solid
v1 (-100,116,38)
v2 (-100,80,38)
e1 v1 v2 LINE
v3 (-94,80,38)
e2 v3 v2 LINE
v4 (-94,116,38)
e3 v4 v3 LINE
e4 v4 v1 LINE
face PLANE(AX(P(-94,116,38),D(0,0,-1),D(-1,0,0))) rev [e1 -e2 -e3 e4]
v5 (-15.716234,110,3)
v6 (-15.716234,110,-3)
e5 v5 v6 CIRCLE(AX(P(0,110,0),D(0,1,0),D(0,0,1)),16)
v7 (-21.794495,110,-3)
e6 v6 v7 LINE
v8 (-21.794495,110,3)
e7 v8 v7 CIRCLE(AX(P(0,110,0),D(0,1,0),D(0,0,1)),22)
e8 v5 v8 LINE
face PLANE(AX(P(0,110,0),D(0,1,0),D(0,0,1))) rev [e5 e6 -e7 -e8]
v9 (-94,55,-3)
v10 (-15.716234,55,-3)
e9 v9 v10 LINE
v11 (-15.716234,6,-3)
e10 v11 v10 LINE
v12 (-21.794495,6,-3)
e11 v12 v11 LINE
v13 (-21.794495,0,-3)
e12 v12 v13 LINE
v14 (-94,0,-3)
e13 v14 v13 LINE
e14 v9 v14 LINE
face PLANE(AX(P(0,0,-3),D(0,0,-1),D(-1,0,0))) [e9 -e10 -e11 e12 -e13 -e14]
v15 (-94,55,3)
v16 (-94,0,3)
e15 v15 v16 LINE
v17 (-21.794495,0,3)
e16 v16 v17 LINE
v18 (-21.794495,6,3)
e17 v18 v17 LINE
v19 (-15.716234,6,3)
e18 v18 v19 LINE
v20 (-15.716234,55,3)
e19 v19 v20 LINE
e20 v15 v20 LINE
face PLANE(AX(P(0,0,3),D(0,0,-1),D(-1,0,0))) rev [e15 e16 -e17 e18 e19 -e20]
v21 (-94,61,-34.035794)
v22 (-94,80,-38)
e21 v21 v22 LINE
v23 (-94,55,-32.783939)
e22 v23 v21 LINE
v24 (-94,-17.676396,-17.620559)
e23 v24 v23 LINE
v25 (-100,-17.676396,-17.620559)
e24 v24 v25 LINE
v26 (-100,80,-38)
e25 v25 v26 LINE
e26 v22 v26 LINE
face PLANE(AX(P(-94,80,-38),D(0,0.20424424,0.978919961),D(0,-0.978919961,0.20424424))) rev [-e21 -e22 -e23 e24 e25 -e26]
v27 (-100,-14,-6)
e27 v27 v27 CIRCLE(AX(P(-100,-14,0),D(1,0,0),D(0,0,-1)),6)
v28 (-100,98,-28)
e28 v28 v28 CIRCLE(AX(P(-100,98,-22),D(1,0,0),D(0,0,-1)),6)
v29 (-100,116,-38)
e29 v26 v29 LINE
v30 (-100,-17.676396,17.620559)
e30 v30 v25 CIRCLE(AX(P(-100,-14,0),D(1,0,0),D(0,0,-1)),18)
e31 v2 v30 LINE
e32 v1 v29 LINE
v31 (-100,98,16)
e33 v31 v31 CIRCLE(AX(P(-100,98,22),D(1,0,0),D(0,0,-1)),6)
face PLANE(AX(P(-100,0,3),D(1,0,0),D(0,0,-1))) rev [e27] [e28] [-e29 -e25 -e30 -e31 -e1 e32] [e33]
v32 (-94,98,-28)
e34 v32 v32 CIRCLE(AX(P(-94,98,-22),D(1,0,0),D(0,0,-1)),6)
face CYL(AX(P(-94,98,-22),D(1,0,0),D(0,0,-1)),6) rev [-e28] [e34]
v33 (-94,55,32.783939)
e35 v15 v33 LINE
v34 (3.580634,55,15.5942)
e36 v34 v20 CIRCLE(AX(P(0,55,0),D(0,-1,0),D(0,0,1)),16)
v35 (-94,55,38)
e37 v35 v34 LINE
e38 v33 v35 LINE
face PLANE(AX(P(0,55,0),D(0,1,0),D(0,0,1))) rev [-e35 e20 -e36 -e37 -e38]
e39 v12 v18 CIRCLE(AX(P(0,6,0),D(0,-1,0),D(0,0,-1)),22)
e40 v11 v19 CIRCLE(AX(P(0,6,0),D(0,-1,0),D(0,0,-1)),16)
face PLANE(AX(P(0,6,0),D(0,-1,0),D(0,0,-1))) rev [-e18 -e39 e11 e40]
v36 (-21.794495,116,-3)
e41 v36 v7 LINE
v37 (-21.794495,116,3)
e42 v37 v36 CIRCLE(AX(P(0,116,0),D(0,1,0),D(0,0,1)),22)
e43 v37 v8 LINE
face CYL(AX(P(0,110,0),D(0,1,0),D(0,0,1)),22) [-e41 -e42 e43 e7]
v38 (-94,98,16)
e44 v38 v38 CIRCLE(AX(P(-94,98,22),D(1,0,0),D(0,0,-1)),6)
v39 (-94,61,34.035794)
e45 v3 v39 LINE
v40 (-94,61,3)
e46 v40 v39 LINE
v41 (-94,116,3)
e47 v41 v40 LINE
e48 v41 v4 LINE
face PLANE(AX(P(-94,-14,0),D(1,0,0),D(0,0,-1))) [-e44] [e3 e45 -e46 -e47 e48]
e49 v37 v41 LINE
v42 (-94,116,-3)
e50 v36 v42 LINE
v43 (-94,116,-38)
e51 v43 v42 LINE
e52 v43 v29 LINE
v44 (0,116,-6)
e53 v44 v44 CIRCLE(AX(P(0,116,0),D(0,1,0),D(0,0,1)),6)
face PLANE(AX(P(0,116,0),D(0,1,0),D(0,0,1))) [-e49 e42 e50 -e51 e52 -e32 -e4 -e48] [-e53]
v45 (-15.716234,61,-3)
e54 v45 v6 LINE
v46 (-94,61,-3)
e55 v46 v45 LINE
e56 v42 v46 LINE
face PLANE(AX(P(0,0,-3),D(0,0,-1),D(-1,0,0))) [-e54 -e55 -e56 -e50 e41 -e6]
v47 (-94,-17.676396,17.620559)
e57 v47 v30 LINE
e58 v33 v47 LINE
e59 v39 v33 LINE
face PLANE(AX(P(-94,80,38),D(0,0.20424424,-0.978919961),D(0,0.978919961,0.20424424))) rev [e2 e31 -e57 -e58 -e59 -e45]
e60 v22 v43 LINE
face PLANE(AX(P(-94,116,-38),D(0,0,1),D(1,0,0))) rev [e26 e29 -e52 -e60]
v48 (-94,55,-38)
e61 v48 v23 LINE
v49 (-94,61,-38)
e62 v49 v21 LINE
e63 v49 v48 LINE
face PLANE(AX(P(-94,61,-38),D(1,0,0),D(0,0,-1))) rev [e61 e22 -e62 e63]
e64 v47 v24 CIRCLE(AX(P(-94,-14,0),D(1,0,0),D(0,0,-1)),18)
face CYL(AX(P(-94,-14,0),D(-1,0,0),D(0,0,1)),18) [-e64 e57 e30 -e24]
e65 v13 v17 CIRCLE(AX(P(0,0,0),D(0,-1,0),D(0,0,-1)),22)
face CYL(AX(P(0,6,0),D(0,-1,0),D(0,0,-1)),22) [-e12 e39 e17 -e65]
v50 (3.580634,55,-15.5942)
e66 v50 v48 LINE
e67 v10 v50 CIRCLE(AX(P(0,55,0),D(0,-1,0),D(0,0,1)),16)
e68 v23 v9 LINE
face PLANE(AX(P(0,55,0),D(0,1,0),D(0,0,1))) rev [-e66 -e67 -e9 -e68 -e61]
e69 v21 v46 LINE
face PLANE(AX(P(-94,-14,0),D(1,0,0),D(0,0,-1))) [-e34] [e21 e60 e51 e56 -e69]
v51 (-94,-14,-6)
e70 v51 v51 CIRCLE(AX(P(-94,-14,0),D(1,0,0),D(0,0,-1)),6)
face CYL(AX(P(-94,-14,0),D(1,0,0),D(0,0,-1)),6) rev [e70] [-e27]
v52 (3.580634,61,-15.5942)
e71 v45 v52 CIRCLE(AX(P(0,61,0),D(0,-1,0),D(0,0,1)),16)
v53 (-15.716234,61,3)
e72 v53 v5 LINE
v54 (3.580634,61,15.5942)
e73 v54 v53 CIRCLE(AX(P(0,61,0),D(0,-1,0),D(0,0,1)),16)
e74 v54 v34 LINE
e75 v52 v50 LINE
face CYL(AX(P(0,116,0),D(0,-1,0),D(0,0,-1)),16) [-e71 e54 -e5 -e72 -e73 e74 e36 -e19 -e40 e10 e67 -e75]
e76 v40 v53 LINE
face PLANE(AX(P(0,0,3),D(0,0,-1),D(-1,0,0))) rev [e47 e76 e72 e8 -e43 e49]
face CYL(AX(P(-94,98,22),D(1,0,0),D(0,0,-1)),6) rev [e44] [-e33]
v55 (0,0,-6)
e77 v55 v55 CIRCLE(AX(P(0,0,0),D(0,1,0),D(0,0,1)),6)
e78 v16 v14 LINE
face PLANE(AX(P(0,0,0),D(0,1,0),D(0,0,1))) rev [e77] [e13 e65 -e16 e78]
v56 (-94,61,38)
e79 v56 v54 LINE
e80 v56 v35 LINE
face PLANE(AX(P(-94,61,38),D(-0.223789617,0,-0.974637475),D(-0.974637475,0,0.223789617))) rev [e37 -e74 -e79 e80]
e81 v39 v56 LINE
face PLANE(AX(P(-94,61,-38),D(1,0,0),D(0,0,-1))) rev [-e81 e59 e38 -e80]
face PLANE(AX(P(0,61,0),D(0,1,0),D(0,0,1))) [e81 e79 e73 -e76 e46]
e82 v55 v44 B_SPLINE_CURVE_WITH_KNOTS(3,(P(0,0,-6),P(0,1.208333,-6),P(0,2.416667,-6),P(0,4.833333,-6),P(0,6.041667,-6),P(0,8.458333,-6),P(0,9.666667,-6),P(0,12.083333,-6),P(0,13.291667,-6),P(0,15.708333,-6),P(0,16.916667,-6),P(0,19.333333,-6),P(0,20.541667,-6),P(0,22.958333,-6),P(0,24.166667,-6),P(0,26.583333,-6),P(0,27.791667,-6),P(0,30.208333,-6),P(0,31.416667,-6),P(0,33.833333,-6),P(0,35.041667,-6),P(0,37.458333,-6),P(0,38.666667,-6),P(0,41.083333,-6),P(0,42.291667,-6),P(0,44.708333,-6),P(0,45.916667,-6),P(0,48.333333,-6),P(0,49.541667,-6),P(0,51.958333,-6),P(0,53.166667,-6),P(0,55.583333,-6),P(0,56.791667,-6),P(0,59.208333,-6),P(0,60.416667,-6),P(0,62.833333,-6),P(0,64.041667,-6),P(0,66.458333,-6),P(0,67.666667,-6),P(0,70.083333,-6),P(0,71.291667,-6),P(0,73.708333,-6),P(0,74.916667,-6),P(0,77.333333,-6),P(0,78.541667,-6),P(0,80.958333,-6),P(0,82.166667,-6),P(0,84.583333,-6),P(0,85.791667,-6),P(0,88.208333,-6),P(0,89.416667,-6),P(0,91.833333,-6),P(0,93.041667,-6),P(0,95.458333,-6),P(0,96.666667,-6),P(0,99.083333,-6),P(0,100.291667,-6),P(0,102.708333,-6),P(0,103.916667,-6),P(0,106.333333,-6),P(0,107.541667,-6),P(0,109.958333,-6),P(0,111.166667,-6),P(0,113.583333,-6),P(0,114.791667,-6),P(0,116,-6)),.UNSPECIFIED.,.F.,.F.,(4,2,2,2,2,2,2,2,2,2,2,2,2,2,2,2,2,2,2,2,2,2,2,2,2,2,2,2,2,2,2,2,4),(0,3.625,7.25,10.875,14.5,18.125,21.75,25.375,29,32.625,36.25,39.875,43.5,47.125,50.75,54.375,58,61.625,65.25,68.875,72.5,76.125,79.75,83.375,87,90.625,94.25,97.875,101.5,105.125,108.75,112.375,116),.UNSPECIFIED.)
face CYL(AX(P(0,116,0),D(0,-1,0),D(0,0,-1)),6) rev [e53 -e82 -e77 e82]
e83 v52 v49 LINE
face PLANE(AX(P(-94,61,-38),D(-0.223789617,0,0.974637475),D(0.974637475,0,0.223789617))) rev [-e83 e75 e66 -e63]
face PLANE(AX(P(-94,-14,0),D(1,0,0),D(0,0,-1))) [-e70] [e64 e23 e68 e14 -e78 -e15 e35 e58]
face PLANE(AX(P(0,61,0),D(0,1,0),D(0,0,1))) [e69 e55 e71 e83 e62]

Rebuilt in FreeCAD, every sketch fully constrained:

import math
import FreeCAD as App
import Part
import Sketcher
Q = App.Units.Quantity


def add_polygon(sketch, points):
    """Adds a closed chain of lines whose ends are joined by coincident constraints."""
    first, n = sketch.GeometryCount, len(points)
    for a, b in zip(points, points[1:] + points[:1]):
        sketch.addGeometry(Part.LineSegment(App.Vector(*a, 0), App.Vector(*b, 0)), False)
    for i in range(n):
        sketch.addConstraint(Sketcher.Constraint("Coincident", first + i, 2, first + (i + 1) % n, 1))

doc = App.newDocument("Part")
body = doc.addObject("PartDesign::Body", "Body")

sketch1 = body.newObject("Sketcher::SketchObject", "Sketch")
sketch1.AttachmentSupport = (doc.getObject("XZ_Plane"), [""])
sketch1.MapMode = "FlatFace"
sketch1.addGeometry(Part.Circle(App.Vector(0, 0, 0), App.Vector(0, 0, 1), 16), False)
sketch1.addGeometry(Part.Circle(App.Vector(0, 0, 0), App.Vector(0, 0, 1), 6), False)
sketch1.addConstraint(Sketcher.Constraint("Coincident", 0, 3, -1, 1))
sketch1.addConstraint(Sketcher.Constraint("Coincident", 1, 3, -1, 1))
sketch1.addConstraint(Sketcher.Constraint("Diameter", 0, Q("32 mm")))
sketch1.addConstraint(Sketcher.Constraint("Diameter", 1, Q("12 mm")))
pad1 = body.newObject("PartDesign::Pad", "Pad")
pad1.Profile = sketch1
pad1.Length = 116
pad1.Reversed = True

sketch2 = body.newObject("Sketcher::SketchObject", "Sketch001")
sketch2.AttachmentSupport = (doc.getObject("XZ_Plane"), [""])
sketch2.MapMode = "FlatFace"
sketch2.AttachmentOffset = App.Placement(App.Vector(0, 0, -110), App.Rotation())
sketch2.addGeometry(Part.Circle(App.Vector(0, 0, 0), App.Vector(0, 0, 1), 22), False)
sketch2.addGeometry(Part.Circle(App.Vector(0, 0, 0), App.Vector(0, 0, 1), 6), False)
sketch2.addConstraint(Sketcher.Constraint("Coincident", 0, 3, -1, 1))
sketch2.addConstraint(Sketcher.Constraint("Coincident", 1, 3, -1, 1))
sketch2.addConstraint(Sketcher.Constraint("Diameter", 0, Q("44 mm")))
sketch2.addConstraint(Sketcher.Constraint("Diameter", 1, Q("12 mm")))
pad2 = body.newObject("PartDesign::Pad", "Pad001")
pad2.Profile = sketch2
pad2.Length = 6
pad2.Reversed = True

sketch3 = body.newObject("Sketcher::SketchObject", "Sketch002")
sketch3.AttachmentSupport = (doc.getObject("XZ_Plane"), [""])
sketch3.MapMode = "FlatFace"
sketch3.addGeometry(Part.Circle(App.Vector(0, 0, 0), App.Vector(0, 0, 1), 22), False)
sketch3.addGeometry(Part.Circle(App.Vector(0, 0, 0), App.Vector(0, 0, 1), 6), False)
sketch3.addConstraint(Sketcher.Constraint("Coincident", 0, 3, -1, 1))
sketch3.addConstraint(Sketcher.Constraint("Coincident", 1, 3, -1, 1))
sketch3.addConstraint(Sketcher.Constraint("Diameter", 0, Q("44 mm")))
sketch3.addConstraint(Sketcher.Constraint("Diameter", 1, Q("12 mm")))
pad3 = body.newObject("PartDesign::Pad", "Pad002")
pad3.Profile = sketch3
pad3.Length = 6
pad3.Reversed = True
body2 = doc.addObject("PartDesign::Body", "Body001")

sketch4 = body2.newObject("Sketcher::SketchObject", "Sketch003")
sketch4.AttachmentSupport = (doc.getObject("YZ_Plane001"), [""])
sketch4.MapMode = "FlatFace"
sketch4.AttachmentOffset = App.Placement(App.Vector(0, 0, -100), App.Rotation())
sketch4.addGeometry(Part.LineSegment(App.Vector(116, -38, 0), App.Vector(116, 38, 0)), False)
sketch4.addGeometry(Part.LineSegment(App.Vector(116, 38, 0), App.Vector(80, 38, 0)), False)
sketch4.addGeometry(Part.LineSegment(App.Vector(80, 38, 0), App.Vector(-18, 18, 0)), False)
sketch4.addGeometry(Part.ArcOfCircle(Part.Circle(App.Vector(-14, 0, 0), App.Vector(0, 0, 1), 18), math.radians(102), math.radians(258)), False)
sketch4.addGeometry(Part.LineSegment(App.Vector(-18, -18, 0), App.Vector(80, -38, 0)), False)
sketch4.addGeometry(Part.LineSegment(App.Vector(80, -38, 0), App.Vector(116, -38, 0)), False)
sketch4.addConstraint(Sketcher.Constraint("Coincident", 0, 2, 1, 1))
sketch4.addConstraint(Sketcher.Constraint("Coincident", 1, 2, 2, 1))
sketch4.addConstraint(Sketcher.Constraint("Tangent", 2, 2, 3, 1))
sketch4.addConstraint(Sketcher.Constraint("Tangent", 3, 2, 4, 1))
sketch4.addConstraint(Sketcher.Constraint("Coincident", 4, 2, 5, 1))
sketch4.addConstraint(Sketcher.Constraint("Coincident", 5, 2, 0, 1))
sketch4.addConstraint(Sketcher.Constraint("Vertical", 0))
sketch4.addConstraint(Sketcher.Constraint("Horizontal", 1))
sketch4.addConstraint(Sketcher.Constraint("Horizontal", 5))
sketch4.addConstraint(Sketcher.Constraint("Symmetric", 2, 2, 3, 2, -1))
sketch4.addConstraint(Sketcher.Constraint("Vertical", 1, 2, 4, 2))
sketch4.addConstraint(Sketcher.Constraint("Radius", 3, Q("18 mm")))
sketch4.addConstraint(Sketcher.Constraint("DistanceX", 1, 2, 1, 1, Q("36 mm")))
sketch4.addConstraint(Sketcher.Constraint("DistanceY", 0, 1, 0, 2, Q("76 mm")))
sketch4.addConstraint(Sketcher.Constraint("DistanceX", 3, 3, -1, 1, Q("14 mm")))
sketch4.addConstraint(Sketcher.Constraint("DistanceX", -1, 1, 0, 2, Q("116 mm")))
pad4 = body2.newObject("PartDesign::Pad", "Pad003")
pad4.Profile = sketch4
pad4.Length = 6
body.AllowCompound = True
doc.recompute()

boolean = body.newObject("PartDesign::Boolean", "Boolean")
boolean.Type = "Fuse"
boolean.addObjects([body2])

sketch5 = body.newObject("Sketcher::SketchObject", "Sketch004")
sketch5.AttachmentSupport = (doc.getObject("XY_Plane"), [""])
sketch5.MapMode = "FlatFace"
add_polygon(sketch5, [(-21, 116), (-100, 116), (-100, 0), (-21, 0), (-21, 6), (-15, 6), (-15, 110), (-21, 110)])
sketch5.addConstraint(Sketcher.Constraint("Horizontal", 0))
sketch5.addConstraint(Sketcher.Constraint("Vertical", 1))
sketch5.addConstraint(Sketcher.Constraint("Horizontal", 2))
sketch5.addConstraint(Sketcher.Constraint("Vertical", 3))
sketch5.addConstraint(Sketcher.Constraint("Horizontal", 4))
sketch5.addConstraint(Sketcher.Constraint("Vertical", 5))
sketch5.addConstraint(Sketcher.Constraint("Horizontal", 6))
sketch5.addConstraint(Sketcher.Constraint("Vertical", 7))
sketch5.addConstraint(Sketcher.Constraint("PointOnObject", 1, 2, -1))
sketch5.addConstraint(Sketcher.Constraint("Vertical", 3, 2, 6, 2))
sketch5.addConstraint(Sketcher.Constraint("Equal", 6, 3))
sketch5.addConstraint(Sketcher.Constraint("Equal", 3, 7))
sketch5.addConstraint(Sketcher.Constraint("DistanceX", 0, 2, 0, 1, Q("79 mm")))
sketch5.addConstraint(Sketcher.Constraint("DistanceX", 4, 1, 4, 2, Q("6 mm")))
sketch5.addConstraint(Sketcher.Constraint("DistanceY", 1, 2, 1, 1, Q("116 mm")))
sketch5.addConstraint(Sketcher.Constraint("DistanceX", 0, 2, -1, 1, Q("100 mm")))
pad5 = body.newObject("PartDesign::Pad", "Pad004")
pad5.Profile = sketch5
pad5.Length = 6
pad5.Midplane = True

sketch6 = body.newObject("Sketcher::SketchObject", "Sketch005")
sketch6.AttachmentSupport = (doc.getObject("XZ_Plane"), [""])
sketch6.MapMode = "FlatFace"
sketch6.AttachmentOffset = App.Placement(App.Vector(0, 0, -58), App.Rotation())
sketch6.addGeometry(Part.LineSegment(App.Vector(-94, -38, 0), App.Vector(-94, 38, 0)), False)
sketch6.addGeometry(Part.LineSegment(App.Vector(-94, 38, 0), App.Vector(4, 16, 0)), False)
sketch6.addGeometry(Part.ArcOfCircle(Part.Circle(App.Vector(0, 0, 0), App.Vector(0, 0, 1), 16), math.radians(77), math.radians(283)), False)
sketch6.addGeometry(Part.LineSegment(App.Vector(4, -16, 0), App.Vector(-94, -38, 0)), False)
sketch6.addConstraint(Sketcher.Constraint("Coincident", 0, 2, 1, 1))
sketch6.addConstraint(Sketcher.Constraint("Tangent", 1, 2, 2, 1))
sketch6.addConstraint(Sketcher.Constraint("Tangent", 2, 2, 3, 1))
sketch6.addConstraint(Sketcher.Constraint("Coincident", 3, 2, 0, 1))
sketch6.addConstraint(Sketcher.Constraint("Vertical", 0))
sketch6.addConstraint(Sketcher.Constraint("Coincident", 2, 3, -1, 1))
sketch6.addConstraint(Sketcher.Constraint("Vertical", 1, 2, 2, 2))
sketch6.addConstraint(Sketcher.Constraint("Radius", 2, Q("16 mm")))
sketch6.addConstraint(Sketcher.Constraint("DistanceY", 0, 1, 0, 2, Q("76 mm")))
sketch6.addConstraint(Sketcher.Constraint("DistanceX", 0, 2, -1, 1, Q("94 mm")))
pad6 = body.newObject("PartDesign::Pad", "Pad005")
pad6.Profile = sketch6
pad6.Length = 6
pad6.Midplane = True

sketch7 = body.newObject("Sketcher::SketchObject", "Sketch006")
sketch7.AttachmentSupport = (doc.getObject("YZ_Plane"), [""])
sketch7.MapMode = "FlatFace"
sketch7.AttachmentOffset = App.Placement(App.Vector(0, 0, -94), App.Rotation())
sketch7.addGeometry(Part.Circle(App.Vector(-14, 0, 0), App.Vector(0, 0, 1), 6), False)
sketch7.addGeometry(Part.Circle(App.Vector(98, 22, 0), App.Vector(0, 0, 1), 6), False)
sketch7.addConstraint(Sketcher.Constraint("Equal", 0, 1))
sketch7.addConstraint(Sketcher.Constraint("PointOnObject", 0, 3, -1))
sketch7.addConstraint(Sketcher.Constraint("Diameter", 0, Q("12 mm")))
sketch7.addConstraint(Sketcher.Constraint("DistanceX", 0, 3, -1, 1, Q("14 mm")))
sketch7.addConstraint(Sketcher.Constraint("DistanceX", -1, 1, 1, 3, Q("98 mm")))
sketch7.addConstraint(Sketcher.Constraint("DistanceY", -1, 1, 1, 3, Q("22 mm")))
doc.recompute()
hole = body.newObject("PartDesign::Hole", "Hole")
hole.Profile = sketch7
hole.ThreadType = "None"
hole.Diameter = 12
hole.DepthType = "ThroughAll"

sketch8 = body.newObject("Sketcher::SketchObject", "Sketch007")
sketch8.AttachmentSupport = (doc.getObject("YZ_Plane"), [""])
sketch8.MapMode = "FlatFace"
sketch8.AttachmentOffset = App.Placement(App.Vector(0, 0, -94), App.Rotation())
sketch8.addGeometry(Part.Circle(App.Vector(98, -22, 0), App.Vector(0, 0, 1), 6), False)
sketch8.addConstraint(Sketcher.Constraint("Diameter", 0, Q("12 mm")))
sketch8.addConstraint(Sketcher.Constraint("DistanceX", -1, 1, 0, 3, Q("98 mm")))
sketch8.addConstraint(Sketcher.Constraint("DistanceY", 0, 3, -1, 1, Q("22 mm")))
doc.recompute()
hole2 = body.newObject("PartDesign::Hole", "Hole001")
hole2.Profile = sketch8
hole2.ThreadType = "None"
hole2.Diameter = 12
hole2.DepthType = "ThroughAll"

doc.recompute()
